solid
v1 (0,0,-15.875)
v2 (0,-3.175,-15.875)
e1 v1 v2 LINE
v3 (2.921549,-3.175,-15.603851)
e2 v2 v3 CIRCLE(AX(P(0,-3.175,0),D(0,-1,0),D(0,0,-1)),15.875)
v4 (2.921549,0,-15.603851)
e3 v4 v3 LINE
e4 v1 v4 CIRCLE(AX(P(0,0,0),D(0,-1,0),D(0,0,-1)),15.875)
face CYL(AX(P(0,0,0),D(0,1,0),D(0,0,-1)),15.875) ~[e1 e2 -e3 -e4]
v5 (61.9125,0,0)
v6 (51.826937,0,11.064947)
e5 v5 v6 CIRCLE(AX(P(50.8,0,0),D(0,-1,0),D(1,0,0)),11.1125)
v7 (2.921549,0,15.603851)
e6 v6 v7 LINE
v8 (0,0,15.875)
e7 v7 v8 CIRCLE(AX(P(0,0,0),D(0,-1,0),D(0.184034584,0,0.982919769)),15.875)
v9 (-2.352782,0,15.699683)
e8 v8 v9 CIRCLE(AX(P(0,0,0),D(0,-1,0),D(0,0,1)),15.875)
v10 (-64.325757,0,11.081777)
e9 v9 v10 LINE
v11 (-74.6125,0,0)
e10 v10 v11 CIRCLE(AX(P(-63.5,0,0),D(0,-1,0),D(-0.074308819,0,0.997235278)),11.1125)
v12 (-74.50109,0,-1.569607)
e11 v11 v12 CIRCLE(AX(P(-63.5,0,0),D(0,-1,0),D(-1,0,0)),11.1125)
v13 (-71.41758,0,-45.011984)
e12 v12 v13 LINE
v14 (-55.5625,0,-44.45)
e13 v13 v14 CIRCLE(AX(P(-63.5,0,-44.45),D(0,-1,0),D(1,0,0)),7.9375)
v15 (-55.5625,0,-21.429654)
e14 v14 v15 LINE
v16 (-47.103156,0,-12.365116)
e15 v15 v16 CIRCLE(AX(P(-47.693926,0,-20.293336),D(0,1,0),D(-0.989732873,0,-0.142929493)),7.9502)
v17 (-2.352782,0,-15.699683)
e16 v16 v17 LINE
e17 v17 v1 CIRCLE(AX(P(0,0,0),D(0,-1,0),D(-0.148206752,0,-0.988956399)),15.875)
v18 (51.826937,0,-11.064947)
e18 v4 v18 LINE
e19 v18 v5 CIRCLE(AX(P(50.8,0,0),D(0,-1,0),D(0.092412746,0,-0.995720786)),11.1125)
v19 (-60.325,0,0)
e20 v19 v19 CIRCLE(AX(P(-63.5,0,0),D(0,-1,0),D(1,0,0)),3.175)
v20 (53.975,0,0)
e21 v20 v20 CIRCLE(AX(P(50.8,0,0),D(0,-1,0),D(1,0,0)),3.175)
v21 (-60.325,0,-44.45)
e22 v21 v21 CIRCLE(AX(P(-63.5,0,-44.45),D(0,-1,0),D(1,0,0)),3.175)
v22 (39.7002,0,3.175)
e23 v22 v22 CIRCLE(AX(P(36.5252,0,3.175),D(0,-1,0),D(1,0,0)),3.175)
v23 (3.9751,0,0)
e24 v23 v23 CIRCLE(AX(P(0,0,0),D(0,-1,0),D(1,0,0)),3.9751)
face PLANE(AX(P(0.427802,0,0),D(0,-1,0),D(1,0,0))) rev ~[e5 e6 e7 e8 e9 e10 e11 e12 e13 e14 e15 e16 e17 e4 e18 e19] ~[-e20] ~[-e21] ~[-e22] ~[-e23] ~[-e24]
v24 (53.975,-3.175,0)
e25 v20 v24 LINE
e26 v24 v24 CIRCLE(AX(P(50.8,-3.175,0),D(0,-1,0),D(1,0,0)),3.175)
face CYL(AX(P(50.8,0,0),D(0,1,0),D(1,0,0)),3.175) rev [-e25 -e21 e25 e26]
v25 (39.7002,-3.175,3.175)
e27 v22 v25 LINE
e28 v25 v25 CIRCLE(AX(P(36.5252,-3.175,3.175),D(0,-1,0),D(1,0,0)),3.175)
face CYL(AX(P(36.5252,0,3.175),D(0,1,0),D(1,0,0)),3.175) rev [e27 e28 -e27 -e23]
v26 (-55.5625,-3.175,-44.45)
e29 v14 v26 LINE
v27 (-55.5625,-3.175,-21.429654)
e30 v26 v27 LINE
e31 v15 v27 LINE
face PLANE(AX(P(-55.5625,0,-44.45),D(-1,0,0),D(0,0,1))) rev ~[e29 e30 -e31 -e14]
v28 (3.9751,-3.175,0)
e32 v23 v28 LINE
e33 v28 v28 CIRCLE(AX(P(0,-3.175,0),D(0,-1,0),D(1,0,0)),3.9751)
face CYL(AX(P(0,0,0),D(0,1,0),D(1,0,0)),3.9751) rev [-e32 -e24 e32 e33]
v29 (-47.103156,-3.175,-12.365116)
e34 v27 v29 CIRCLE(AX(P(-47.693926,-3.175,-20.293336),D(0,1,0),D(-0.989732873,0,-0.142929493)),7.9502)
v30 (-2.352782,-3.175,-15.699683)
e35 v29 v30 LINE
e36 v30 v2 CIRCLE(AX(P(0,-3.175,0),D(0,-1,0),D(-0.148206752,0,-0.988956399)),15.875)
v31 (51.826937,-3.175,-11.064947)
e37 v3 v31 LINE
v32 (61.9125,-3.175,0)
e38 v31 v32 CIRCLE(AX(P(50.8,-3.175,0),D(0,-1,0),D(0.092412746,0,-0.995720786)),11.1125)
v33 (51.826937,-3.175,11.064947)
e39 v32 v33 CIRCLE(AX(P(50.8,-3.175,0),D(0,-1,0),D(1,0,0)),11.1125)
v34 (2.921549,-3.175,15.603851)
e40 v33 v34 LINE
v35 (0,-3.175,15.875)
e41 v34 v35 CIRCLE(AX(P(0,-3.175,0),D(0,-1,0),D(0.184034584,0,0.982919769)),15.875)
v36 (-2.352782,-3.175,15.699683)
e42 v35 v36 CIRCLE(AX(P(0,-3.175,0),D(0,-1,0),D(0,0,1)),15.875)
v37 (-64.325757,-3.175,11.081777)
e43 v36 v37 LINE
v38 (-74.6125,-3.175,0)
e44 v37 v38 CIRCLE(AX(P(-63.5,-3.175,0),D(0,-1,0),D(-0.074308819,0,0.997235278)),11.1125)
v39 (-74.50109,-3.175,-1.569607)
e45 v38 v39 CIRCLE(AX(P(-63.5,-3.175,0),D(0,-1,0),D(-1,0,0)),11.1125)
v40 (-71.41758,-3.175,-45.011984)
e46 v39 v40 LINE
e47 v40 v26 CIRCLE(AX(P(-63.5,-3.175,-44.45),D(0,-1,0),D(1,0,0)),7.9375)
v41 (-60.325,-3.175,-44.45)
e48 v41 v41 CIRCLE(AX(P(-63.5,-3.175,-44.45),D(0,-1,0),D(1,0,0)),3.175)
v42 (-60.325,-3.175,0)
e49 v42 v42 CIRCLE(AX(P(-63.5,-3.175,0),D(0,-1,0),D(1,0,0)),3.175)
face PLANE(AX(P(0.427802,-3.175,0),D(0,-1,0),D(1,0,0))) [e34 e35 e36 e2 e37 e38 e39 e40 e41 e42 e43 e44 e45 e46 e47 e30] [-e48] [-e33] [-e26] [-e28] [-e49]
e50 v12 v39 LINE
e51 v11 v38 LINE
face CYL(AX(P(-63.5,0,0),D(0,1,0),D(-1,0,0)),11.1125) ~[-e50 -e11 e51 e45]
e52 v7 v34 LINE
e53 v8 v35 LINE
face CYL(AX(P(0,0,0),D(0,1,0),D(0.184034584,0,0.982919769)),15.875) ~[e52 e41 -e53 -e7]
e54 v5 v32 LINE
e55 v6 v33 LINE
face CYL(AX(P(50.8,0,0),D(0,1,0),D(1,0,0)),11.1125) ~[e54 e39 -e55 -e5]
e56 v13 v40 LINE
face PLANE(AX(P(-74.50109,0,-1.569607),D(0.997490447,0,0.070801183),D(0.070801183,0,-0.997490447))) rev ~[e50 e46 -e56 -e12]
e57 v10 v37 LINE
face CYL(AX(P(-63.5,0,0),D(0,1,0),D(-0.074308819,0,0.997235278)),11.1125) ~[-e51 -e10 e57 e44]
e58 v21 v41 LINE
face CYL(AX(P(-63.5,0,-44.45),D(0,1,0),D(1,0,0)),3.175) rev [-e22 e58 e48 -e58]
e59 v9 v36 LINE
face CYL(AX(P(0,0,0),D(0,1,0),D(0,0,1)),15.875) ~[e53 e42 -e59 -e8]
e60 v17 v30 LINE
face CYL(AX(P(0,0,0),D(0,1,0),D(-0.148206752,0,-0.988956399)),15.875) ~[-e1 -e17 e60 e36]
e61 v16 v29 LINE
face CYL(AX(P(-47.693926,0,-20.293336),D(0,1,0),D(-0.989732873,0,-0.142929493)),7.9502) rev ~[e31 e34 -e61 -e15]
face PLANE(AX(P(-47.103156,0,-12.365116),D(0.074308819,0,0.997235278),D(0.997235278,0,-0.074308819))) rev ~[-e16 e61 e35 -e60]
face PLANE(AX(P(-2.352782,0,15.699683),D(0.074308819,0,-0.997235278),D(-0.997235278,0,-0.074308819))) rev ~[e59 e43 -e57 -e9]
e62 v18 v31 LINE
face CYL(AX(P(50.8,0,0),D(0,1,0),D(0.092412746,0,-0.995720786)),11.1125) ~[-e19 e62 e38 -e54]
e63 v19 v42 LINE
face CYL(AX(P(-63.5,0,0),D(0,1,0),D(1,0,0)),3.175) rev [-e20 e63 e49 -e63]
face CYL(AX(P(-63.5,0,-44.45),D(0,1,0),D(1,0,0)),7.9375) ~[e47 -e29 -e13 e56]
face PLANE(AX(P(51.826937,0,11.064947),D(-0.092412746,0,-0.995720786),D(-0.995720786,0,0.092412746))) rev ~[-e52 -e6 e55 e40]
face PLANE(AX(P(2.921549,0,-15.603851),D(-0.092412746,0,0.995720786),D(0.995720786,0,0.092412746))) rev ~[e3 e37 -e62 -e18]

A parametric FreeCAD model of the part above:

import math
import FreeCAD as App
import Part
import Sketcher
from FreeCAD import Vector
Q = App.Units.Quantity

doc = App.newDocument("Part")
body = doc.addObject("PartDesign::Body", "Body")

# Sketch on XZ plane
sketch1 = body.newObject("Sketcher::SketchObject", "Sketch")
sketch1.AttachmentSupport = (doc.getObject("XZ_Plane"), [""])
sketch1.MapMode = "FlatFace"
sketch1.addGeometry([
    Part.LineSegment(Vector(2.9, -15.6, 0), Vector(51.8, -11.1, 0)),  # 0
    Part.ArcOfCircle(Part.Circle(Vector(50.8, 0, 0), Vector(0, 0, 1), 11.1), math.radians(-85), math.radians(0)),  # 1
    Part.ArcOfCircle(Part.Circle(Vector(50.8, 0, 0), Vector(0, 0, 1), 11.1), math.radians(0), math.radians(85)),  # 2
    Part.LineSegment(Vector(51.8, 11.1, 0), Vector(2.9, 15.6, 0)),  # 3
    Part.ArcOfCircle(Part.Circle(Vector(0, 0, 0), Vector(0, 0, 1), 15.9), math.radians(79.4), math.radians(90)),  # 4
    Part.ArcOfCircle(Part.Circle(Vector(0, 0, 0), Vector(0, 0, 1), 15.9), math.radians(90), math.radians(98.52)),  # 5
    Part.LineSegment(Vector(-2.4, 15.7, 0), Vector(-64.3, 11.1, 0)),  # 6
    Part.ArcOfCircle(Part.Circle(Vector(-63.5, 0, 0), Vector(0, 0, 1), 11.1), math.radians(94), math.radians(180)),  # 7
    Part.ArcOfCircle(Part.Circle(Vector(-63.5, 0, 0), Vector(0, 0, 1), 11.1), math.radians(180), math.radians(188.12)),  # 8
    Part.LineSegment(Vector(-74.5, -1.6, 0), Vector(-71.4, -45, 0)),  # 9
    Part.ArcOfCircle(Part.Circle(Vector(-63.5, -44.5, 0), Vector(0, 0, 1), 7.9), math.radians(-176), math.radians(0)),  # 10
    Part.LineSegment(Vector(-55.6, -44.5, 0), Vector(-55.6, -21.4, 0)),  # 11
    Part.ArcOfCircle(Part.Circle(Vector(-47.7, -20.3, 0), Vector(0, 0, 1), 8), math.radians(86), math.radians(188)),  # 12
    Part.LineSegment(Vector(-47.1, -12.4, 0), Vector(-2.4, -15.7, 0)),  # 13
    Part.ArcOfCircle(Part.Circle(Vector(0, 0, 0), Vector(0, 0, 1), 15.9), math.radians(-98.52), math.radians(-90)),  # 14
    Part.ArcOfCircle(Part.Circle(Vector(0, 0, 0), Vector(0, 0, 1), 15.9), math.radians(-90), math.radians(-79.4)),  # 15
    Part.Circle(Vector(-63.5, -44.5, 0), Vector(0, 0, 1), 3.2),  # 16
    Part.Circle(Vector(-63.5, 0, 0), Vector(0, 0, 1), 3.2),  # 17
    Part.Circle(Vector(0, 0, 0), Vector(0, 0, 1), 4),  # 18
    Part.Circle(Vector(36.5, 3.2, 0), Vector(0, 0, 1), 3.2),  # 19
    Part.Circle(Vector(50.8, 0, 0), Vector(0, 0, 1), 3.2),  # 20
], False)
sketch1.addConstraint([
    Sketcher.Constraint("Tangent", 0, 2, 1, 1),
    Sketcher.Constraint("Tangent", 1, 2, 2, 1),
    Sketcher.Constraint("Tangent", 2, 2, 3, 1),
    Sketcher.Constraint("Coincident", 3, 2, 4, 1),
    Sketcher.Constraint("Tangent", 4, 2, 5, 1),
    Sketcher.Constraint("Coincident", 5, 2, 6, 1),
    Sketcher.Constraint("Tangent", 6, 2, 7, 1),
    Sketcher.Constraint("Tangent", 7, 2, 8, 1),
    Sketcher.Constraint("Coincident", 8, 2, 9, 1),
    Sketcher.Constraint("Tangent", 9, 2, 10, 1),
    Sketcher.Constraint("Tangent", 10, 2, 11, 1),
    Sketcher.Constraint("Coincident", 11, 2, 12, 2),
    Sketcher.Constraint("Tangent", 12, 1, 13, 1),
    Sketcher.Constraint("Coincident", 13, 2, 14, 1),
    Sketcher.Constraint("Tangent", 14, 2, 15, 1),
    Sketcher.Constraint("Coincident", 15, 2, 0, 1),
    Sketcher.Constraint("Vertical", 11),
    Sketcher.Constraint("Coincident", 4, 3, -1, 1),
    Sketcher.Constraint("Coincident", 14, 3, -1, 1),
    Sketcher.Constraint("Coincident", 18, 3, -1, 1),
    Sketcher.Constraint("Coincident", 16, 3, 10, 3),
    Sketcher.Constraint("Coincident", 17, 3, 7, 3),
    Sketcher.Constraint("Coincident", 20, 3, 1, 3),
    Sketcher.Constraint("Equal", 1, 2),
    Sketcher.Constraint("Equal", 4, 5),
    Sketcher.Constraint("Equal", 2, 7),
    Sketcher.Constraint("Equal", 7, 8),
    Sketcher.Constraint("Equal", 5, 14),
    Sketcher.Constraint("Equal", 14, 15),
    Sketcher.Constraint("Equal", 16, 17),
    Sketcher.Constraint("Equal", 17, 19),
    Sketcher.Constraint("Equal", 19, 20),
    Sketcher.Constraint("Symmetric", 0, 2, 2, 2, -1),
    Sketcher.Constraint("PointOnObject", 7, 3, -1),
    Sketcher.Constraint("PointOnObject", 1, 2, -1),
    Sketcher.Constraint("PointOnObject", 4, 2, -2),
    Sketcher.Constraint("PointOnObject", 7, 2, -1),
    Sketcher.Constraint("PointOnObject", 14, 2, -2),
    Sketcher.Constraint("Vertical", 8, 3, 10, 3),
    Sketcher.Constraint("Vertical", 5, 2, 13, 2),
    Sketcher.Constraint("Diameter", 16, Q("0.25 in")),
    Sketcher.Constraint("Diameter", 18, Q("0.313 in")),
    Sketcher.Constraint("DistanceX", -1, 1, 1, 3, Q("2 in")),
    Sketcher.Constraint("Radius", 1, Q("0.4375 in")),
    Sketcher.Constraint("Radius", 4, Q("0.625 in")),
    Sketcher.Constraint("Radius", 10, Q("0.3125 in")),
    Sketcher.Constraint("Radius", 12, Q("0.313 in")),
    Sketcher.Constraint("DistanceX", 7, 3, -1, 1, Q("2.5 in")),
    Sketcher.Constraint("DistanceY", 10, 3, -1, 1, Q("1.75 in")),
    Sketcher.Constraint("Angle", 9, Q("-85.939994 deg")),
    Sketcher.Constraint("DistanceX", -1, 1, 19, 3, Q("1.438 in")),
    Sketcher.Constraint("DistanceY", -1, 1, 19, 3, Q("0.125 in")),
    Sketcher.Constraint("Distance", 13, Q("44.874439 mm")),
    Sketcher.Constraint("DistanceY", 11, 1, 11, 2, Q("23.020346 mm")),
    Sketcher.Constraint("DistanceX", -1, 1, 3, 2, Q("2.921549 mm")),
    Sketcher.Constraint("DistanceX", 6, 2, 12, 3, Q("16.631831 mm")),
])
pad1 = body.newObject("PartDesign::Pad", "Pad")
pad1.Profile = sketch1
pad1.Length = Q("0.125 in")

doc.recompute()
